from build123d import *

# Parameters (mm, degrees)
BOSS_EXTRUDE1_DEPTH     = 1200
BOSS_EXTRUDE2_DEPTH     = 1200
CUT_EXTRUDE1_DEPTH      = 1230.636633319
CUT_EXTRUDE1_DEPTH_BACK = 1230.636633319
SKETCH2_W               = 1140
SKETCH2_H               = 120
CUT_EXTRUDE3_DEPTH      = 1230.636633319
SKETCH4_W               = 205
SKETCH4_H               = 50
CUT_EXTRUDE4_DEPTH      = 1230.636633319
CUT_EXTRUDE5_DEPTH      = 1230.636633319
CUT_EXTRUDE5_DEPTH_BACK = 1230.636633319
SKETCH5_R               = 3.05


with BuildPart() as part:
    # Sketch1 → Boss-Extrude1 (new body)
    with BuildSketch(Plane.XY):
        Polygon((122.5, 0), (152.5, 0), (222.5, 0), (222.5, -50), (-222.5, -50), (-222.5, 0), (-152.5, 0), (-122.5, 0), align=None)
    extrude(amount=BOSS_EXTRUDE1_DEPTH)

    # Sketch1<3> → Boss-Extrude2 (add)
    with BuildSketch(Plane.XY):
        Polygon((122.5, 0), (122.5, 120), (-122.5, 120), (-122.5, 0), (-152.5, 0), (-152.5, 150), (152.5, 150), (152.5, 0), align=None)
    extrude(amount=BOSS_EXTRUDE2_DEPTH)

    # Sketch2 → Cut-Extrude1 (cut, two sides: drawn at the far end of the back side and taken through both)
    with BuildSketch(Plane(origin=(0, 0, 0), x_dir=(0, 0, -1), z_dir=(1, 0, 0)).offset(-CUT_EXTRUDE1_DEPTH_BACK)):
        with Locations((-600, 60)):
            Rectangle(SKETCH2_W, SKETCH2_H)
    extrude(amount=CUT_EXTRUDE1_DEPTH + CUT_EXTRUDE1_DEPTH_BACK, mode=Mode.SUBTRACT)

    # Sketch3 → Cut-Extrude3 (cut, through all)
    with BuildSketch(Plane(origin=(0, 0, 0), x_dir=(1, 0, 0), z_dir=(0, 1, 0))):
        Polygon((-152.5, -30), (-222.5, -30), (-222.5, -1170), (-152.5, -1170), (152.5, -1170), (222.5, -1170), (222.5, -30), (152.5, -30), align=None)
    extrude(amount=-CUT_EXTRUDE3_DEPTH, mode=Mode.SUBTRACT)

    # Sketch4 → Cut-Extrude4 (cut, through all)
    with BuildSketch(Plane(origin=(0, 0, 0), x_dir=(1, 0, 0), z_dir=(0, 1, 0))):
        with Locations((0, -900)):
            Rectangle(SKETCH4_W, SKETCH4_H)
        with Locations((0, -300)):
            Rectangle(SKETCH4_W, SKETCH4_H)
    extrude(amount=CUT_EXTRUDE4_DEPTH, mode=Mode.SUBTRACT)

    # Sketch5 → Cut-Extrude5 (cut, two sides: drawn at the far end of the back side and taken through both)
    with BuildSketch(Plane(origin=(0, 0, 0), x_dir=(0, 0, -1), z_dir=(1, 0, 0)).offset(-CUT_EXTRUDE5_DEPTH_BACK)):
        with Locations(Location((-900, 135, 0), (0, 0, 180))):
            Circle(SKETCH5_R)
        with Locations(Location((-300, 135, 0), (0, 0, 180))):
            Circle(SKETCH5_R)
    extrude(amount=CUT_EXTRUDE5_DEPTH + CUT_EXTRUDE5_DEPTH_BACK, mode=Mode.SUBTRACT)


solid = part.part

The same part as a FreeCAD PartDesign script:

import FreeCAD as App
import Part
import Sketcher

V = App.Vector
Q = App.Units.Quantity

doc = App.newDocument("Part")
body = doc.addObject("PartDesign::Body", "Body")

# Sketch on XY plane
sketch1 = body.newObject("Sketcher::SketchObject", "Sketch")
sketch1.AttachmentSupport = (doc.getObject("XY_Plane"), [""])
sketch1.MapMode = "FlatFace"
sketch1.addGeometry(Part.LineSegment(V(222, 0, 0), V(-222, 0, 0)), False)
sketch1.addGeometry(Part.LineSegment(V(-222, 0, 0), V(-222, -50, 0)), False)
sketch1.addGeometry(Part.LineSegment(V(-222, -50, 0), V(222, -50, 0)), False)
sketch1.addGeometry(Part.LineSegment(V(222, -50, 0), V(222, 0, 0)), False)
sketch1.addConstraint(Sketcher.Constraint("Coincident", 0, 2, 1, 1))
sketch1.addConstraint(Sketcher.Constraint("Coincident", 1, 2, 2, 1))
sketch1.addConstraint(Sketcher.Constraint("Coincident", 2, 2, 3, 1))
sketch1.addConstraint(Sketcher.Constraint("Coincident", 3, 2, 0, 1))
sketch1.addConstraint(Sketcher.Constraint("Horizontal", 0))
sketch1.addConstraint(Sketcher.Constraint("Vertical", 1))
sketch1.addConstraint(Sketcher.Constraint("Horizontal", 2))
sketch1.addConstraint(Sketcher.Constraint("Vertical", 3))
sketch1.addConstraint(Sketcher.Constraint("Symmetric", 0, 2, 3, 2, -1, 1))
sketch1.addConstraint(Sketcher.Constraint("DistanceX", 0, 2, 0, 1, Q("445 mm")))
sketch1.addConstraint(Sketcher.Constraint("DistanceY", 1, 2, 1, 1, Q("50 mm")))
pad1 = body.newObject("PartDesign::Pad", "Pad")
pad1.Profile = sketch1
pad1.Length = 1200

# Sketch on XY plane
sketch2 = body.newObject("Sketcher::SketchObject", "Sketch001")
sketch2.AttachmentSupport = (doc.getObject("XY_Plane"), [""])
sketch2.MapMode = "FlatFace"
sketch2.addGeometry(Part.LineSegment(V(122, 120, 0), V(122, 0, 0)), False)
sketch2.addGeometry(Part.LineSegment(V(122, 0, 0), V(152, 0, 0)), False)
sketch2.addGeometry(Part.LineSegment(V(152, 0, 0), V(152, 150, 0)), False)
sketch2.addGeometry(Part.LineSegment(V(152, 150, 0), V(-152, 150, 0)), False)
sketch2.addGeometry(Part.LineSegment(V(-152, 150, 0), V(-152, 0, 0)), False)
sketch2.addGeometry(Part.LineSegment(V(-152, 0, 0), V(-122, 0, 0)), False)
sketch2.addGeometry(Part.LineSegment(V(-122, 0, 0), V(-122, 120, 0)), False)
sketch2.addGeometry(Part.LineSegment(V(-122, 120, 0), V(122, 120, 0)), False)
sketch2.addConstraint(Sketcher.Constraint("Coincident", 0, 2, 1, 1))
sketch2.addConstraint(Sketcher.Constraint("Coincident", 1, 2, 2, 1))
sketch2.addConstraint(Sketcher.Constraint("Coincident", 2, 2, 3, 1))
sketch2.addConstraint(Sketcher.Constraint("Coincident", 3, 2, 4, 1))
sketch2.addConstraint(Sketcher.Constraint("Coincident", 4, 2, 5, 1))
sketch2.addConstraint(Sketcher.Constraint("Coincident", 5, 2, 6, 1))
sketch2.addConstraint(Sketcher.Constraint("Coincident", 6, 2, 7, 1))
sketch2.addConstraint(Sketcher.Constraint("Coincident", 7, 2, 0, 1))
sketch2.addConstraint(Sketcher.Constraint("Vertical", 0))
sketch2.addConstraint(Sketcher.Constraint("Horizontal", 1))
sketch2.addConstraint(Sketcher.Constraint("Vertical", 2))
sketch2.addConstraint(Sketcher.Constraint("Horizontal", 3))
sketch2.addConstraint(Sketcher.Constraint("Vertical", 4))
sketch2.addConstraint(Sketcher.Constraint("Horizontal", 5))
sketch2.addConstraint(Sketcher.Constraint("Vertical", 6))
sketch2.addConstraint(Sketcher.Constraint("Horizontal", 7))
sketch2.addConstraint(Sketcher.Constraint("Symmetric", 1, 2, 4, 2, -1, 1))
sketch2.addConstraint(Sketcher.Constraint("Symmetric", 0, 2, 5, 2, -2))
sketch2.addConstraint(Sketcher.Constraint("DistanceX", 1, 1, 1, 2, Q("30 mm")))
sketch2.addConstraint(Sketcher.Constraint("DistanceX", 3, 2, 3, 1, Q("305 mm")))
sketch2.addConstraint(Sketcher.Constraint("DistanceY", 0, 2, 0, 1, Q("120 mm")))
sketch2.addConstraint(Sketcher.Constraint("DistanceY", 2, 1, 2, 2, Q("150 mm")))
pad2 = body.newObject("PartDesign::Pad", "Pad001")
pad2.Profile = sketch2
pad2.Length = 1200

# Sketch on YZ plane
sketch3 = body.newObject("Sketcher::SketchObject", "Sketch002")
sketch3.AttachmentSupport = (doc.getObject("YZ_Plane"), [""])
sketch3.MapMode = "FlatFace"
sketch3.addGeometry(Part.LineSegment(V(120, 1170, 0), V(0, 1170, 0)), False)
sketch3.addGeometry(Part.LineSegment(V(0, 1170, 0), V(0, 30, 0)), False)
sketch3.addGeometry(Part.LineSegment(V(0, 30, 0), V(120, 30, 0)), False)
sketch3.addGeometry(Part.LineSegment(V(120, 30, 0), V(120, 1170, 0)), False)
sketch3.addConstraint(Sketcher.Constraint("Coincident", 0, 2, 1, 1))
sketch3.addConstraint(Sketcher.Constraint("Coincident", 1, 2, 2, 1))
sketch3.addConstraint(Sketcher.Constraint("Coincident", 2, 2, 3, 1))
sketch3.addConstraint(Sketcher.Constraint("Coincident", 3, 2, 0, 1))
sketch3.addConstraint(Sketcher.Constraint("Horizontal", 0))
sketch3.addConstraint(Sketcher.Constraint("Vertical", 1))
sketch3.addConstraint(Sketcher.Constraint("Horizontal", 2))
sketch3.addConstraint(Sketcher.Constraint("Vertical", 3))
sketch3.addConstraint(Sketcher.Constraint("PointOnObject", 0, 2, -2))
sketch3.addConstraint(Sketcher.Constraint("DistanceX", 0, 2, 0, 1, Q("120 mm")))
sketch3.addConstraint(Sketcher.Constraint("DistanceY", 1, 2, 1, 1, Q("1140 mm")))
sketch3.addConstraint(Sketcher.Constraint("DistanceY", -1, 1, 0, 2, Q("1170 mm")))
pocket1 = body.newObject("PartDesign::Pocket", "Pocket")
pocket1.Profile = sketch3
pocket1.Type = "ThroughAll"
pocket1.Midplane = True

# Sketch on XZ plane
sketch4 = body.newObject("Sketcher::SketchObject", "Sketch003")
sketch4.AttachmentSupport = (doc.getObject("XZ_Plane"), [""])
sketch4.MapMode = "FlatFace"
sketch4.addGeometry(Part.LineSegment(V(-222, 30, 0), V(-222, 1170, 0)), False)
sketch4.addGeometry(Part.LineSegment(V(-222, 1170, 0), V(222, 1170, 0)), False)
sketch4.addGeometry(Part.LineSegment(V(222, 1170, 0), V(222, 30, 0)), False)
sketch4.addGeometry(Part.LineSegment(V(222, 30, 0), V(-222, 30, 0)), False)
sketch4.addConstraint(Sketcher.Constraint("Coincident", 0, 2, 1, 1))
sketch4.addConstraint(Sketcher.Constraint("Coincident", 1, 2, 2, 1))
sketch4.addConstraint(Sketcher.Constraint("Coincident", 2, 2, 3, 1))
sketch4.addConstraint(Sketcher.Constraint("Coincident", 3, 2, 0, 1))
sketch4.addConstraint(Sketcher.Constraint("Vertical", 0))
sketch4.addConstraint(Sketcher.Constraint("Horizontal", 1))
sketch4.addConstraint(Sketcher.Constraint("Vertical", 2))
sketch4.addConstraint(Sketcher.Constraint("Horizontal", 3))
sketch4.addConstraint(Sketcher.Constraint("DistanceX", 1, 1, 1, 2, Q("445 mm")))
sketch4.addConstraint(Sketcher.Constraint("DistanceY", 0, 1, 0, 2, Q("1140 mm")))
sketch4.addConstraint(Sketcher.Constraint("DistanceY", -1, 1, 0, 2, Q("1170 mm")))
sketch4.addConstraint(Sketcher.Constraint("DistanceX", 0, 2, -1, 1, Q("222.5 mm")))
pocket2 = body.newObject("PartDesign::Pocket", "Pocket001")
pocket2.Profile = sketch4
pocket2.Type = "ThroughAll"
pocket2.Reversed = True

# Sketch on XZ plane
sketch5 = body.newObject("Sketcher::SketchObject", "Sketch004")
sketch5.AttachmentSupport = (doc.getObject("XZ_Plane"), [""])
sketch5.MapMode = "FlatFace"
sketch5.addGeometry(Part.LineSegment(V(-102, 875, 0), V(-102, 925, 0)), False)
sketch5.addGeometry(Part.LineSegment(V(-102, 925, 0), V(102, 925, 0)), False)
sketch5.addGeometry(Part.LineSegment(V(102, 925, 0), V(102, 875, 0)), False)
sketch5.addGeometry(Part.LineSegment(V(102, 875, 0), V(-102, 875, 0)), False)
sketch5.addGeometry(Part.LineSegment(V(-102, 275, 0), V(-102, 325, 0)), False)
sketch5.addGeometry(Part.LineSegment(V(-102, 325, 0), V(102, 325, 0)), False)
sketch5.addGeometry(Part.LineSegment(V(102, 325, 0), V(102, 275, 0)), False)
sketch5.addGeometry(Part.LineSegment(V(102, 275, 0), V(-102, 275, 0)), False)
sketch5.addConstraint(Sketcher.Constraint("Coincident", 0, 2, 1, 1))
sketch5.addConstraint(Sketcher.Constraint("Coincident", 1, 2, 2, 1))
sketch5.addConstraint(Sketcher.Constraint("Coincident", 2, 2, 3, 1))
sketch5.addConstraint(Sketcher.Constraint("Coincident", 3, 2, 0, 1))
sketch5.addConstraint(Sketcher.Constraint("Coincident", 4, 2, 5, 1))
sketch5.addConstraint(Sketcher.Constraint("Coincident", 5, 2, 6, 1))
sketch5.addConstraint(Sketcher.Constraint("Coincident", 6, 2, 7, 1))
sketch5.addConstraint(Sketcher.Constraint("Coincident", 7, 2, 4, 1))
sketch5.addConstraint(Sketcher.Constraint("Vertical", 0))
sketch5.addConstraint(Sketcher.Constraint("Horizontal", 1))
sketch5.addConstraint(Sketcher.Constraint("Vertical", 2))
sketch5.addConstraint(Sketcher.Constraint("Horizontal", 3))
sketch5.addConstraint(Sketcher.Constraint("Vertical", 4))
sketch5.addConstraint(Sketcher.Constraint("Horizontal", 5))
sketch5.addConstraint(Sketcher.Constraint("Vertical", 6))
sketch5.addConstraint(Sketcher.Constraint("Horizontal", 7))
sketch5.addConstraint(Sketcher.Constraint("Vertical", 3, 2, 4, 2))
sketch5.addConstraint(Sketcher.Constraint("Vertical", 2, 2, 5, 2))
sketch5.addConstraint(Sketcher.Constraint("Equal", 2, 4))
sketch5.addConstraint(Sketcher.Constraint("DistanceX", 1, 1, 1, 2, Q("205 mm")))
sketch5.addConstraint(Sketcher.Constraint("DistanceY", 0, 1, 0, 2, Q("50 mm")))
sketch5.addConstraint(Sketcher.Constraint("DistanceY", -1, 1, 0, 2, Q("925 mm")))
sketch5.addConstraint(Sketcher.Constraint("DistanceY", -1, 1, 4, 2, Q("325 mm")))
sketch5.addConstraint(Sketcher.Constraint("DistanceX", 0, 2, -1, 1, Q("102.5 mm")))
pocket3 = body.newObject("PartDesign::Pocket", "Pocket002")
pocket3.Profile = sketch5
pocket3.Type = "ThroughAll"

# Sketch on YZ plane
sketch6 = body.newObject("Sketcher::SketchObject", "Sketch005")
sketch6.AttachmentSupport = (doc.getObject("YZ_Plane"), [""])
sketch6.MapMode = "FlatFace"
sketch6.addGeometry(Part.Circle(V(135, 900, 0), V(0, 0, 1), 3), False)
sketch6.addGeometry(Part.Circle(V(135, 300, 0), V(0, 0, 1), 3), False)
sketch6.addConstraint(Sketcher.Constraint("Equal", 0, 1))
sketch6.addConstraint(Sketcher.Constraint("Vertical", 0, 3, 1, 3))
sketch6.addConstraint(Sketcher.Constraint("Diameter", 0, Q("6.1 mm")))
sketch6.addConstraint(Sketcher.Constraint("DistanceX", -1, 1, 0, 3, Q("135 mm")))
sketch6.addConstraint(Sketcher.Constraint("DistanceY", -1, 1, 0, 3, Q("900 mm")))
sketch6.addConstraint(Sketcher.Constraint("DistanceY", -1, 1, 1, 3, Q("300 mm")))
pocket4 = body.newObject("PartDesign::Pocket", "Pocket003")
pocket4.Profile = sketch6
pocket4.Type = "ThroughAll"
pocket4.Midplane = True

doc.recompute()
